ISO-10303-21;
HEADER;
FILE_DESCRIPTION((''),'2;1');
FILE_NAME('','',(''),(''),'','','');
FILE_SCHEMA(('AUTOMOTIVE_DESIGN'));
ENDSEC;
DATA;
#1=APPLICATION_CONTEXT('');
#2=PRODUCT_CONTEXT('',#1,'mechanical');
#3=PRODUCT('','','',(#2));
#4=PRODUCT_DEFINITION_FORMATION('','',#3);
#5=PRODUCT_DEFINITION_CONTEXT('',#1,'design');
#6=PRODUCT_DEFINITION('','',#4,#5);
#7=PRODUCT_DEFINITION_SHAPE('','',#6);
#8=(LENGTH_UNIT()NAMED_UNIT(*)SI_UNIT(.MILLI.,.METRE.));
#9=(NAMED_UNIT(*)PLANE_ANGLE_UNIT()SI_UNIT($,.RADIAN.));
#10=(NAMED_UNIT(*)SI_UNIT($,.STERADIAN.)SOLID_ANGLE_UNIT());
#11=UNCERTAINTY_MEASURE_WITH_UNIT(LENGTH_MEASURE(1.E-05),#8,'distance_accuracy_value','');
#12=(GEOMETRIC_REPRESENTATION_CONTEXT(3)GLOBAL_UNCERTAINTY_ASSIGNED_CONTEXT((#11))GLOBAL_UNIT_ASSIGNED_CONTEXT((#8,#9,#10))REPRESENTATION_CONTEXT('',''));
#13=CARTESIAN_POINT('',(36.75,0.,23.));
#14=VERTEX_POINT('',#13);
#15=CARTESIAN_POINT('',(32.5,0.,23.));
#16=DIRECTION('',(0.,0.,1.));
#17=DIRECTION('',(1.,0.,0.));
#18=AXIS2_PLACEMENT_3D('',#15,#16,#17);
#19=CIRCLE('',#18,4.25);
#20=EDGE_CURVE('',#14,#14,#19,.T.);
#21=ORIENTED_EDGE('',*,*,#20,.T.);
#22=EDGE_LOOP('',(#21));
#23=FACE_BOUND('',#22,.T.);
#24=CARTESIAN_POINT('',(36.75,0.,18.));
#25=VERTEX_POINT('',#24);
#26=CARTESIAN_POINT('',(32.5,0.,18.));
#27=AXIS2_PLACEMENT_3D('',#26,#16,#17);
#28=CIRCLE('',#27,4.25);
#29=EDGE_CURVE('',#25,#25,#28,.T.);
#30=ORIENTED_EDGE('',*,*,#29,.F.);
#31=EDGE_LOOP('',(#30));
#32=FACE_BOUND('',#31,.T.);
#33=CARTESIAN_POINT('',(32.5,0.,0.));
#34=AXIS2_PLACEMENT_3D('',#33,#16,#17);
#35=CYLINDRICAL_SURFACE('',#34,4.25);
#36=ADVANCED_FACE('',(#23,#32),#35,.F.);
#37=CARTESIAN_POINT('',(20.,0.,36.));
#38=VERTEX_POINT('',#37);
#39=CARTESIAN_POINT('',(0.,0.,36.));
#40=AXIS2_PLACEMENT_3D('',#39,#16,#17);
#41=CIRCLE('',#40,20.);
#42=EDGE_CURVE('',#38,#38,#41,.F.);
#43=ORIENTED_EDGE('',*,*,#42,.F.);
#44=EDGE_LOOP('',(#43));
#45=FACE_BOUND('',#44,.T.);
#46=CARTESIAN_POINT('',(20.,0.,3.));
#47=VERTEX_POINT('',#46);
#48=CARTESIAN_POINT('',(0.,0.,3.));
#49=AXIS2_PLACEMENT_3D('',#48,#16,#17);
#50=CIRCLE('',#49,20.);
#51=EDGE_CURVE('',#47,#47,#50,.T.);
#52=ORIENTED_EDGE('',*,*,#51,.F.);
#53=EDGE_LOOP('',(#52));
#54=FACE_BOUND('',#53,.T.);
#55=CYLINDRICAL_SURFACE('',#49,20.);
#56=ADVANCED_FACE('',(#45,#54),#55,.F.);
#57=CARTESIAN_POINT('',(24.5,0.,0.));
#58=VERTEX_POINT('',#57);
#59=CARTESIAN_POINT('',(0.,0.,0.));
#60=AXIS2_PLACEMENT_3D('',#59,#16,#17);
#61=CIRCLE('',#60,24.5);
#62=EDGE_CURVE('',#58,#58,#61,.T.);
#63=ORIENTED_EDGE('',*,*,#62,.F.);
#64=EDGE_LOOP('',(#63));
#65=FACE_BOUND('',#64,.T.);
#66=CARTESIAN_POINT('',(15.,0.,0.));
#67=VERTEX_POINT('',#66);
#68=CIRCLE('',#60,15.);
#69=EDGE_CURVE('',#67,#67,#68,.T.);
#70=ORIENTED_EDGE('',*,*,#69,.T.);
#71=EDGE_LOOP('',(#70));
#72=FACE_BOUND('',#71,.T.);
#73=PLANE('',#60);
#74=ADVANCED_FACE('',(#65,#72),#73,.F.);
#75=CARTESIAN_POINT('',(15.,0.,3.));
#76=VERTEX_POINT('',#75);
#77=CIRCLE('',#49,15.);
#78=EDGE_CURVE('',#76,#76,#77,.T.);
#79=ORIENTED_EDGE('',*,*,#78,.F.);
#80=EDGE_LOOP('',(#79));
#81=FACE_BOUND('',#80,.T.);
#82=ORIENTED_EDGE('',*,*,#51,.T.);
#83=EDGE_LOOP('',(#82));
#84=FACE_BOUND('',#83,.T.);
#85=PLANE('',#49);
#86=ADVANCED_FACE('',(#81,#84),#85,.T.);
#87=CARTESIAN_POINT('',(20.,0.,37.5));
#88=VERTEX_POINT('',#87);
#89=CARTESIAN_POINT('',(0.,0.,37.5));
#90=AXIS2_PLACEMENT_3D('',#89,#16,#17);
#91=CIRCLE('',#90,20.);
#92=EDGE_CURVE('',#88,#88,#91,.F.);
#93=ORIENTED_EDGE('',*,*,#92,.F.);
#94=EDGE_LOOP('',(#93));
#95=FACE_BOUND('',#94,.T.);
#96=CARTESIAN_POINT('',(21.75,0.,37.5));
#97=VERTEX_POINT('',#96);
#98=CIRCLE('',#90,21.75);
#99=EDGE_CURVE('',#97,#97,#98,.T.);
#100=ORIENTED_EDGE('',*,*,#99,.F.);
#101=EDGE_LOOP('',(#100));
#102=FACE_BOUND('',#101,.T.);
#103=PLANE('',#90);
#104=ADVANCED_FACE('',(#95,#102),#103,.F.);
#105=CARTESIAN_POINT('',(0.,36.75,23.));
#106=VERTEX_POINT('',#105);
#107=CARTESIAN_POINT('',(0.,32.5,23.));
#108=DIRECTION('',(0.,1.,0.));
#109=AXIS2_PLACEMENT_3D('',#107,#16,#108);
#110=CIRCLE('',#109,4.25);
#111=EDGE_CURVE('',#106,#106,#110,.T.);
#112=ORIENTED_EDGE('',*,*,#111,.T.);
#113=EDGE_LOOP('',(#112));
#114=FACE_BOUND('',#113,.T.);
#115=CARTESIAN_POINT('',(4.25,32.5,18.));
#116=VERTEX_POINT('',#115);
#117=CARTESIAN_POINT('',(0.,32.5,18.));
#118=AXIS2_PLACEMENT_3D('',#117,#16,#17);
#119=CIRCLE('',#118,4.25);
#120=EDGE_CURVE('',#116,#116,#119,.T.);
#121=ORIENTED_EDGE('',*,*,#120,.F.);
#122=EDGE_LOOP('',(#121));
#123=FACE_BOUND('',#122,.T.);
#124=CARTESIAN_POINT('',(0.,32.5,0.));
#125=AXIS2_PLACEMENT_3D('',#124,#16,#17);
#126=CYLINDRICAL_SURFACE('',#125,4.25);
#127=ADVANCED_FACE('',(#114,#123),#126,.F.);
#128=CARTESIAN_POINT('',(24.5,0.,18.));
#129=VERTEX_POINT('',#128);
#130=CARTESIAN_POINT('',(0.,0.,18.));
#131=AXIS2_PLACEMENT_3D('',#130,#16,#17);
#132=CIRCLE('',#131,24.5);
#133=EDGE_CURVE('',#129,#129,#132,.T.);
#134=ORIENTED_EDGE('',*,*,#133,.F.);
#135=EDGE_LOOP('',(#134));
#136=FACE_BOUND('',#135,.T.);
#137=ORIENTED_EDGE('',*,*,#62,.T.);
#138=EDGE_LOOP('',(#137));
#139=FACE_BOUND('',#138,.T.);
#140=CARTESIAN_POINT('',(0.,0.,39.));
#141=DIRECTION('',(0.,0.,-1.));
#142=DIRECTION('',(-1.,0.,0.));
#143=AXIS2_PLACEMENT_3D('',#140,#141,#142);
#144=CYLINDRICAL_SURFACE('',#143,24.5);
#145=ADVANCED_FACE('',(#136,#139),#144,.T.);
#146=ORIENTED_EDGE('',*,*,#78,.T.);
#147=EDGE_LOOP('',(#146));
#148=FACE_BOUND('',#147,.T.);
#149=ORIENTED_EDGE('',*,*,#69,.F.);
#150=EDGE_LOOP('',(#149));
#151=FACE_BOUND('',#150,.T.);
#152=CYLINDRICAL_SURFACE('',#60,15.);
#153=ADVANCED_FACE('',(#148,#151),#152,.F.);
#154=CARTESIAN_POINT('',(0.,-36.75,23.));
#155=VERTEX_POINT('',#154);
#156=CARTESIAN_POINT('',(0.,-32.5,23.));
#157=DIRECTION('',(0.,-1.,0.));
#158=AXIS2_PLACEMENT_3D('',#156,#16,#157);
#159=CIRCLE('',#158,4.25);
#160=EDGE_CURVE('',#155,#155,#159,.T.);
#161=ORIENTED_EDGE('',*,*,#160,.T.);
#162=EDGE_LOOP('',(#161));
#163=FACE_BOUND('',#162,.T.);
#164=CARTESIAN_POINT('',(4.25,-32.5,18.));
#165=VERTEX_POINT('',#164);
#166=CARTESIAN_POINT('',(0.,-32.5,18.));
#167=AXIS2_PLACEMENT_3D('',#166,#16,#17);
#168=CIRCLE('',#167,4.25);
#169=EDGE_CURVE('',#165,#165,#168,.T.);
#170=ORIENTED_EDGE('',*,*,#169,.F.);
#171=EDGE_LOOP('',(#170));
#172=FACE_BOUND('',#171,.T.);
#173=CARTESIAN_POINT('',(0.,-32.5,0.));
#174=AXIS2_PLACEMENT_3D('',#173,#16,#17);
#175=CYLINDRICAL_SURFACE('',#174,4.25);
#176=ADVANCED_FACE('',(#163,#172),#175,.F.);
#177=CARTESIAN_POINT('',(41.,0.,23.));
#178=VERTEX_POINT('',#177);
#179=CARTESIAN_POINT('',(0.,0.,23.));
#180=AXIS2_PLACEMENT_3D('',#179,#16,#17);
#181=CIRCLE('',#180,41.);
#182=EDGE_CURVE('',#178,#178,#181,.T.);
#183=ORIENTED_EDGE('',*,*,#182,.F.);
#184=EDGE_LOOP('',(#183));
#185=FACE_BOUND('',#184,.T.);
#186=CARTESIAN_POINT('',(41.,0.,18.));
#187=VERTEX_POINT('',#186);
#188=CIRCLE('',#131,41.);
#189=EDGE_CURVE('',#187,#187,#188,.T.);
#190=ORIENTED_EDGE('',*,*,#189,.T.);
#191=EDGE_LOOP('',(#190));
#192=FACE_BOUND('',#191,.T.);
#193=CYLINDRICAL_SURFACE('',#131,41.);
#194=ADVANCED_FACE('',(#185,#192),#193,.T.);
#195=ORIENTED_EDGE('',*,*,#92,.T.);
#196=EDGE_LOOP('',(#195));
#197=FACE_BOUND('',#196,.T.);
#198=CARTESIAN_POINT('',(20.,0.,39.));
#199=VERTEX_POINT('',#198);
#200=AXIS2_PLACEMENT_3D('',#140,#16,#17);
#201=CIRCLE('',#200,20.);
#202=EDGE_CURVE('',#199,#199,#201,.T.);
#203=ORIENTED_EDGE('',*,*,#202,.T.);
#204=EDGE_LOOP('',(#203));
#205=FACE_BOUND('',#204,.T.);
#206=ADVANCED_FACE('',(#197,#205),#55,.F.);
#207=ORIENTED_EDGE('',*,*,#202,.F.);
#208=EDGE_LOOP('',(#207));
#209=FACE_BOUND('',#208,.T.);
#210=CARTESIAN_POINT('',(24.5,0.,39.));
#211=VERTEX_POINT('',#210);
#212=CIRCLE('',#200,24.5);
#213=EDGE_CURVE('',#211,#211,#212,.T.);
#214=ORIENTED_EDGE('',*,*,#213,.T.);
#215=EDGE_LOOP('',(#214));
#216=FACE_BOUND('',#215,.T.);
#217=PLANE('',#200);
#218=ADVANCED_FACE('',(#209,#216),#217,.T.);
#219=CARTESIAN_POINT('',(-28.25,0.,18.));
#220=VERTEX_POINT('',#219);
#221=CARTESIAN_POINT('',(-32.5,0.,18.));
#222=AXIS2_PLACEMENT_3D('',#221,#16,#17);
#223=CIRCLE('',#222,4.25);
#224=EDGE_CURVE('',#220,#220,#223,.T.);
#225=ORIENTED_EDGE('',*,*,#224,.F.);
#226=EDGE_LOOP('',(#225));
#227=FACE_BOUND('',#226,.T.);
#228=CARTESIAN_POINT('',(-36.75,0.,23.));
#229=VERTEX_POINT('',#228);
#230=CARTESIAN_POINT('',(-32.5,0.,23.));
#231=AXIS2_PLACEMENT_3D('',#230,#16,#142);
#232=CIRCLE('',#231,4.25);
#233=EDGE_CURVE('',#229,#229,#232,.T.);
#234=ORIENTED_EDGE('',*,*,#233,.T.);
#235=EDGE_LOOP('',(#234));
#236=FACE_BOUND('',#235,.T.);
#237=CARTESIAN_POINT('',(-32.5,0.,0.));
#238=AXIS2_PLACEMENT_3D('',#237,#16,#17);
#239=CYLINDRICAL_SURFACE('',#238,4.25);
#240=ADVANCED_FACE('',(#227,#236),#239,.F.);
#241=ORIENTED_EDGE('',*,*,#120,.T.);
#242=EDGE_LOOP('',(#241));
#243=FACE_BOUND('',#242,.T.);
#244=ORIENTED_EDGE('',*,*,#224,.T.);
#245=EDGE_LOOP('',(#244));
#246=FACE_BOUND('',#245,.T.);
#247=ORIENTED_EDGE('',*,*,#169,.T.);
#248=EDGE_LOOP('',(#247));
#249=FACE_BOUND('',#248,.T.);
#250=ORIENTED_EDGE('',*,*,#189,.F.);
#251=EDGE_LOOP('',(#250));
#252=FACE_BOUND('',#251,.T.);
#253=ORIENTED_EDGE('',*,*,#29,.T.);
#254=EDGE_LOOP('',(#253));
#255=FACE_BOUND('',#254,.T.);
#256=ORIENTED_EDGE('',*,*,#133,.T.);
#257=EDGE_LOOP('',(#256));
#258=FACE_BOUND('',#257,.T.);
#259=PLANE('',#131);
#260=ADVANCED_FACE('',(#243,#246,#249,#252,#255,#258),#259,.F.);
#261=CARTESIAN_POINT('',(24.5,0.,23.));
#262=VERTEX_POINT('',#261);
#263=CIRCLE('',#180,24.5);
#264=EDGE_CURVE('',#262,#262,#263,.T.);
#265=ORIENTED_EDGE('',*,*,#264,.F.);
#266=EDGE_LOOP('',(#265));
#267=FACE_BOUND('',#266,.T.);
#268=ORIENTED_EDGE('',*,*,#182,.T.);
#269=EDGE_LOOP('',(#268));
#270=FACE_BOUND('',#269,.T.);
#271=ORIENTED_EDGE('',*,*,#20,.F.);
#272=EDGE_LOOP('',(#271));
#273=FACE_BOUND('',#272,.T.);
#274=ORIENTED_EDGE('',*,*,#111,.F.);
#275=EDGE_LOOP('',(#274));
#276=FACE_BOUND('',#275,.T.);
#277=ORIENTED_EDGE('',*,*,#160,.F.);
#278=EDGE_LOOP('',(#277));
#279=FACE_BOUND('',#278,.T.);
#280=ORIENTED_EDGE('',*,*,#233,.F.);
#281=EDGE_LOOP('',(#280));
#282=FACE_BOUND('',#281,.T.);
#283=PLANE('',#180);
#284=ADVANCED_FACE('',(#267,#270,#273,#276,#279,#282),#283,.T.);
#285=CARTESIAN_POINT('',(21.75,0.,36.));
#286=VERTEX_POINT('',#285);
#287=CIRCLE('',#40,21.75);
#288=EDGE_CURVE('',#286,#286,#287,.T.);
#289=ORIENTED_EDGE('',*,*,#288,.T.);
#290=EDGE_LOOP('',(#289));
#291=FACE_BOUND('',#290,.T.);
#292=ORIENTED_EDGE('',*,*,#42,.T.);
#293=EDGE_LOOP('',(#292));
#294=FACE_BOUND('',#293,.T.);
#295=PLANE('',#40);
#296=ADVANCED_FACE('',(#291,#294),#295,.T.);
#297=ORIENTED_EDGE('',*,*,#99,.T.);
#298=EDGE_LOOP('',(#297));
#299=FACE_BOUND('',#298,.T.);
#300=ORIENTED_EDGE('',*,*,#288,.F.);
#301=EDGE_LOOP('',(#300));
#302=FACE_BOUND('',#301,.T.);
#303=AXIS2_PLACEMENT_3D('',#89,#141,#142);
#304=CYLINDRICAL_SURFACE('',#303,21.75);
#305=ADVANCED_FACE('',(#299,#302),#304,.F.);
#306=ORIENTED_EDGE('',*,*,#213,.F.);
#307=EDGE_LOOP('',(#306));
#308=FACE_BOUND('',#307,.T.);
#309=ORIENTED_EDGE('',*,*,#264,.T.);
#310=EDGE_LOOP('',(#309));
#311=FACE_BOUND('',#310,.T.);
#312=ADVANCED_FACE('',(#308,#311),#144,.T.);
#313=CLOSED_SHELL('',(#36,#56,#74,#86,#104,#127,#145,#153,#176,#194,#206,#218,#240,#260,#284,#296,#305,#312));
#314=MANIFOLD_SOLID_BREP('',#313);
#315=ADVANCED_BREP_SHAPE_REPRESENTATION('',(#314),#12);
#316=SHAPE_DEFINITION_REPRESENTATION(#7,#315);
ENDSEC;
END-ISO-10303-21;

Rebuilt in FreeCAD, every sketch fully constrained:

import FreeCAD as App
import Part
import Sketcher

V = App.Vector

doc = App.newDocument("Part")
params = doc.addObject("Spreadsheet::Sheet", "Params")
for row, (alias, value) in enumerate([
    ("sketch1_diameter", "49 mm"),
    ("pad1_length", "39 mm"),
    ("sketch2_diameter", "40 mm"),
    ("pocket1_length", "36 mm"),
    ("sketch3_diameter", "30 mm"),
    ("sketch4_diameter", "43.5 mm"),
    ("pocket3_length", "1.5 mm"),
    ("sketch5_diameter", "82 mm"),
    ("sketch5_diameter2", "49 mm"),
    ("pad2_length", "5 mm"),
    ("sketch6_diameter", "8.5 mm"),
], start=1):
    params.set(f"A{row}", alias)
    params.set(f"B{row}", "=" + value)
    params.setAlias(f"B{row}", alias)

body = doc.addObject("PartDesign::Body", "Body")

sketch1 = body.newObject("Sketcher::SketchObject", "Sketch")
sketch1.AttachmentSupport = (doc.getObject("XY_Plane"), [""])
sketch1.MapMode = "FlatFace"
sketch1.addGeometry(Part.Circle(V(0, 0, 0), V(0, 0, 1), 24.5), False)
sketch1.addConstraint([
    Sketcher.Constraint("Coincident", 0, 3, -1, 1),
    Sketcher.Constraint("Diameter", 0, 49.0),
])
sketch1.setExpression("Constraints[1]", "Params.sketch1_diameter")
pad1 = body.newObject("PartDesign::Pad", "Pad")
pad1.Profile = sketch1
pad1.setExpression("Length", "Params.pad1_length")

sketch2 = body.newObject("Sketcher::SketchObject", "Sketch001")
sketch2.AttachmentSupport = (doc.getObject("XY_Plane"), [""])
sketch2.MapMode = "FlatFace"
sketch2.AttachmentOffset = App.Placement(V(0, 0, 39), App.Rotation())
sketch2.addGeometry(Part.Circle(V(0, 0, 0), V(0, 0, 1), 20), False)
sketch2.addConstraint([
    Sketcher.Constraint("Coincident", 0, 3, -1, 1),
    Sketcher.Constraint("Diameter", 0, 40.0),
])
sketch2.setExpression("Constraints[1]", "Params.sketch2_diameter")
pocket1 = body.newObject("PartDesign::Pocket", "Pocket")
pocket1.Profile = sketch2
pocket1.setExpression("Length", "Params.pocket1_length")

sketch3 = body.newObject("Sketcher::SketchObject", "Sketch002")
sketch3.AttachmentSupport = (doc.getObject("XY_Plane"), [""])
sketch3.MapMode = "FlatFace"
sketch3.AttachmentOffset = App.Placement(V(0, 0, 3), App.Rotation())
sketch3.addGeometry(Part.Circle(V(0, 0, 0), V(0, 0, 1), 15), False)
sketch3.addConstraint([
    Sketcher.Constraint("Coincident", 0, 3, -1, 1),
    Sketcher.Constraint("Diameter", 0, 30.0),
])
sketch3.setExpression("Constraints[1]", "Params.sketch3_diameter")
pocket2 = body.newObject("PartDesign::Pocket", "Pocket001")
pocket2.Profile = sketch3
pocket2.Type = "ThroughAll"

sketch4 = body.newObject("Sketcher::SketchObject", "Sketch003")
sketch4.AttachmentSupport = (doc.getObject("XY_Plane"), [""])
sketch4.MapMode = "FlatFace"
sketch4.AttachmentOffset = App.Placement(V(0, 0, 36), App.Rotation())
sketch4.addGeometry(Part.Circle(V(0, 0, 0), V(0, 0, 1), 21.75), False)
sketch4.addConstraint([
    Sketcher.Constraint("Coincident", 0, 3, -1, 1),
    Sketcher.Constraint("Diameter", 0, 43.5),
])
sketch4.setExpression("Constraints[1]", "Params.sketch4_diameter")
pocket3 = body.newObject("PartDesign::Pocket", "Pocket002")
pocket3.Profile = sketch4
pocket3.setExpression("Length", "Params.pocket3_length")
pocket3.Reversed = True

sketch5 = body.newObject("Sketcher::SketchObject", "Sketch004")
sketch5.AttachmentSupport = (doc.getObject("XY_Plane"), [""])
sketch5.MapMode = "FlatFace"
sketch5.AttachmentOffset = App.Placement(V(0, 0, 18), App.Rotation())
sketch5.addGeometry([
    Part.Circle(V(0, 0, 0), V(0, 0, 1), 41),
    Part.Circle(V(0, 0, 0), V(0, 0, 1), 24.5),
], False)
sketch5.addConstraint([
    Sketcher.Constraint("Coincident", 0, 3, -1, 1),
    Sketcher.Constraint("Coincident", 1, 3, -1, 1),
    Sketcher.Constraint("Diameter", 0, 82.0),
    Sketcher.Constraint("Diameter", 1, 49.0),
])
sketch5.setExpression("Constraints[2]", "Params.sketch5_diameter")
sketch5.setExpression("Constraints[3]", "Params.sketch5_diameter2")
pad2 = body.newObject("PartDesign::Pad", "Pad001")
pad2.Profile = sketch5
pad2.setExpression("Length", "Params.pad2_length")

sketch6 = body.newObject("Sketcher::SketchObject", "Sketch005")
sketch6.AttachmentSupport = (doc.getObject("XY_Plane"), [""])
sketch6.MapMode = "FlatFace"
sketch6.AttachmentOffset = App.Placement(V(0, 0, 23), App.Rotation())
sketch6.addGeometry(Part.Circle(V(32.5, 0, 0), V(0, 0, 1), 4.25), False)
sketch6.addConstraint([
    Sketcher.Constraint("PointOnObject", 0, 3, -1),
    Sketcher.Constraint("Diameter", 0, 8.5),
    Sketcher.Constraint("DistanceX", -1, 1, 0, 3, 32.5),
])
sketch6.setExpression("Constraints[1]", "Params.sketch6_diameter")
pocket4 = body.newObject("PartDesign::Pocket", "Pocket003")
pocket4.Profile = sketch6
pocket4.Type = "ThroughAll"
doc.recompute()

polarpattern = body.newObject("PartDesign::PolarPattern", "PolarPattern")
polarpattern.Originals = [pocket4]
polarpattern.Axis = (doc.getObject("Z_Axis"), [""])
polarpattern.Angle = 360
polarpattern.Occurrences = 4
body.Tip = polarpattern

doc.recompute()
